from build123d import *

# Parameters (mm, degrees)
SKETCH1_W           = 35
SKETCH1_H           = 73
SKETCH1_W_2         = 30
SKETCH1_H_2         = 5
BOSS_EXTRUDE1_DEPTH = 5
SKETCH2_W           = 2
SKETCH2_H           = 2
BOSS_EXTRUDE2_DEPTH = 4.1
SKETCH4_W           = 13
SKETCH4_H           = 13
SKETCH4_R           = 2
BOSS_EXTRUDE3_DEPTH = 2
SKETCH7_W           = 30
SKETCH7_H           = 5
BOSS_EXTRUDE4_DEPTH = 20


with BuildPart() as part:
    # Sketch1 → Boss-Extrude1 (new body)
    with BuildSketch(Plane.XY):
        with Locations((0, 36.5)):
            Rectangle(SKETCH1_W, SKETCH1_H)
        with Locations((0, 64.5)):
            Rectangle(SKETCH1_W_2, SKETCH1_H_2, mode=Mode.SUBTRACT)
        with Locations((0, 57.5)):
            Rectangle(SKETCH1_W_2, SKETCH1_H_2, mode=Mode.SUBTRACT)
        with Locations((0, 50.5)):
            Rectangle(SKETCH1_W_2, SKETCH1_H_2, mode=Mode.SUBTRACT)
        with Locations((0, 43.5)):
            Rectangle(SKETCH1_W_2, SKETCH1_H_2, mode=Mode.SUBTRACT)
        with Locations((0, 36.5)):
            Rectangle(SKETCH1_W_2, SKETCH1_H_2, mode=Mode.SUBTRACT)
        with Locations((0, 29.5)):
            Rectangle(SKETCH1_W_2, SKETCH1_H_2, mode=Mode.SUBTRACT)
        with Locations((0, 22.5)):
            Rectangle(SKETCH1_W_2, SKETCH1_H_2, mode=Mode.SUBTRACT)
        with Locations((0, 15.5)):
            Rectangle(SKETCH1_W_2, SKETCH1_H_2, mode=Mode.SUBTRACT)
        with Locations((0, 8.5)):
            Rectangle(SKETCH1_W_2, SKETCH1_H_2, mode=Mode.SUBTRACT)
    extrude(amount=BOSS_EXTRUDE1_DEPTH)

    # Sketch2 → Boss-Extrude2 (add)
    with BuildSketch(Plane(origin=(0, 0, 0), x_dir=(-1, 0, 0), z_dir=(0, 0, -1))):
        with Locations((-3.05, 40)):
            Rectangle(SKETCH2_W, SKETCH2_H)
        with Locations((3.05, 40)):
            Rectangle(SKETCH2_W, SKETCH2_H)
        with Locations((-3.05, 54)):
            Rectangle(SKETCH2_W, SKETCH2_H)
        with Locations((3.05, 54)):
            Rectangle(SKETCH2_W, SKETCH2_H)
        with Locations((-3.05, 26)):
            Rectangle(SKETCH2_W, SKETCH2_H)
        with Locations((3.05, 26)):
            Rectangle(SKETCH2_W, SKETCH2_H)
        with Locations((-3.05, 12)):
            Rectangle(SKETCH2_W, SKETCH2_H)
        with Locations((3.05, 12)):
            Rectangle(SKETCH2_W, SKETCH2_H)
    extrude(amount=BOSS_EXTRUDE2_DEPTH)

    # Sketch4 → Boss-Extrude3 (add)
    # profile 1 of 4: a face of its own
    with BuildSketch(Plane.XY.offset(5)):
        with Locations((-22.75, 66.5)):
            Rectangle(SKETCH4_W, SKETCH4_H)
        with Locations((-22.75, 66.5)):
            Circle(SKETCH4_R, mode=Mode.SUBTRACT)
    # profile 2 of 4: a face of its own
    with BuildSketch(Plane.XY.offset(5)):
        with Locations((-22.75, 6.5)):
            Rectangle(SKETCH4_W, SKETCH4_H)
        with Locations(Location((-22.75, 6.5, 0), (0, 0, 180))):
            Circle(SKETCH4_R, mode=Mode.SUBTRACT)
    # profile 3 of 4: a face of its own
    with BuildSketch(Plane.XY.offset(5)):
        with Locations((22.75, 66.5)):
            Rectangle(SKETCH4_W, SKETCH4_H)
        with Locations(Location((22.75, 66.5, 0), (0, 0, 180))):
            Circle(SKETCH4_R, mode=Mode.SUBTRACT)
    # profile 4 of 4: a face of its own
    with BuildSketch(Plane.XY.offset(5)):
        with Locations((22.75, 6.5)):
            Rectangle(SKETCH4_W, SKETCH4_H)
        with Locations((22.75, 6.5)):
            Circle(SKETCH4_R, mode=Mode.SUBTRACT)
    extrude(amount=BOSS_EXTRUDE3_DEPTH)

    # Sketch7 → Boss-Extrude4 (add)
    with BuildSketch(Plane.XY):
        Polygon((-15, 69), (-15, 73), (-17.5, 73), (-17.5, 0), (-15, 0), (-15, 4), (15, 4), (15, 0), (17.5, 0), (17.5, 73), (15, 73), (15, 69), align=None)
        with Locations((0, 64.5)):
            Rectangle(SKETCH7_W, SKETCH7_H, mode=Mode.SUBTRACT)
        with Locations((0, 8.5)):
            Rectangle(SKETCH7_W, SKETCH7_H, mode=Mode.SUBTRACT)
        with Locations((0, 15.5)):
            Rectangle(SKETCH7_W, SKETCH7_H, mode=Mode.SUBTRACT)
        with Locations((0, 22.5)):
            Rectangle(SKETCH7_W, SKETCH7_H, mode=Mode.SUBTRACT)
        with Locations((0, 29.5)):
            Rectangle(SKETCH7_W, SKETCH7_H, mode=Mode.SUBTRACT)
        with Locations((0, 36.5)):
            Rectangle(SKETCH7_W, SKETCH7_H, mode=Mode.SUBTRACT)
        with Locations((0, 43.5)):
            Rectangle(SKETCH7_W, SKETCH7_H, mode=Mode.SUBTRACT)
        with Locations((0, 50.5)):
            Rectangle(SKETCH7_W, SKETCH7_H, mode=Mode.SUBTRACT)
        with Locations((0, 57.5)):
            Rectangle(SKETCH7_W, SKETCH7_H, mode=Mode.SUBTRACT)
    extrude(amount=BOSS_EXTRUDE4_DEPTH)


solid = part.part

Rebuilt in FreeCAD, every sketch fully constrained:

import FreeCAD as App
import Part
import Sketcher

V = App.Vector

doc = App.newDocument("Part")
body = doc.addObject("PartDesign::Body", "Body")

# Sketch on XY plane
sketch1 = body.newObject("Sketcher::SketchObject", "Sketch")
sketch1.AttachmentSupport = (doc.getObject("XY_Plane"), [""])
sketch1.MapMode = "FlatFace"
sketch1.addGeometry([
    Part.LineSegment(V(-18, 73, 0), V(-18, 0, 0)),  # 0
    Part.LineSegment(V(-18, 0, 0), V(18, 0, 0)),  # 1
    Part.LineSegment(V(18, 0, 0), V(18, 73, 0)),  # 2
    Part.LineSegment(V(18, 73, 0), V(-18, 73, 0)),  # 3
    Part.LineSegment(V(15, 6, 0), V(-15, 6, 0)),  # 4
    Part.LineSegment(V(-15, 6, 0), V(-15, 11, 0)),  # 5
    Part.LineSegment(V(-15, 11, 0), V(15, 11, 0)),  # 6
    Part.LineSegment(V(15, 11, 0), V(15, 6, 0)),  # 7
    Part.LineSegment(V(15, 13, 0), V(-15, 13, 0)),  # 8
    Part.LineSegment(V(-15, 13, 0), V(-15, 18, 0)),  # 9
    Part.LineSegment(V(-15, 18, 0), V(15, 18, 0)),  # 10
    Part.LineSegment(V(15, 18, 0), V(15, 13, 0)),  # 11
    Part.LineSegment(V(15, 20, 0), V(-15, 20, 0)),  # 12
    Part.LineSegment(V(-15, 20, 0), V(-15, 25, 0)),  # 13
    Part.LineSegment(V(-15, 25, 0), V(15, 25, 0)),  # 14
    Part.LineSegment(V(15, 25, 0), V(15, 20, 0)),  # 15
    Part.LineSegment(V(15, 27, 0), V(-15, 27, 0)),  # 16
    Part.LineSegment(V(-15, 27, 0), V(-15, 32, 0)),  # 17
    Part.LineSegment(V(-15, 32, 0), V(15, 32, 0)),  # 18
    Part.LineSegment(V(15, 32, 0), V(15, 27, 0)),  # 19
    Part.LineSegment(V(15, 34, 0), V(-15, 34, 0)),  # 20
    Part.LineSegment(V(-15, 34, 0), V(-15, 39, 0)),  # 21
    Part.LineSegment(V(-15, 39, 0), V(15, 39, 0)),  # 22
    Part.LineSegment(V(15, 39, 0), V(15, 34, 0)),  # 23
    Part.LineSegment(V(15, 41, 0), V(-15, 41, 0)),  # 24
    Part.LineSegment(V(-15, 41, 0), V(-15, 46, 0)),  # 25
    Part.LineSegment(V(-15, 46, 0), V(15, 46, 0)),  # 26
    Part.LineSegment(V(15, 46, 0), V(15, 41, 0)),  # 27
    Part.LineSegment(V(15, 48, 0), V(-15, 48, 0)),  # 28
    Part.LineSegment(V(-15, 48, 0), V(-15, 53, 0)),  # 29
    Part.LineSegment(V(-15, 53, 0), V(15, 53, 0)),  # 30
    Part.LineSegment(V(15, 53, 0), V(15, 48, 0)),  # 31
    Part.LineSegment(V(15, 55, 0), V(-15, 55, 0)),  # 32
    Part.LineSegment(V(-15, 55, 0), V(-15, 60, 0)),  # 33
    Part.LineSegment(V(-15, 60, 0), V(15, 60, 0)),  # 34
    Part.LineSegment(V(15, 60, 0), V(15, 55, 0)),  # 35
    Part.LineSegment(V(15, 62, 0), V(-15, 62, 0)),  # 36
    Part.LineSegment(V(-15, 62, 0), V(-15, 67, 0)),  # 37
    Part.LineSegment(V(-15, 67, 0), V(15, 67, 0)),  # 38
    Part.LineSegment(V(15, 67, 0), V(15, 62, 0)),  # 39
], False)
sketch1.addConstraint([
    Sketcher.Constraint("Coincident", 0, 2, 1, 1),
    Sketcher.Constraint("Coincident", 1, 2, 2, 1),
    Sketcher.Constraint("Coincident", 2, 2, 3, 1),
    Sketcher.Constraint("Coincident", 3, 2, 0, 1),
    Sketcher.Constraint("Coincident", 4, 2, 5, 1),
    Sketcher.Constraint("Coincident", 5, 2, 6, 1),
    Sketcher.Constraint("Coincident", 6, 2, 7, 1),
    Sketcher.Constraint("Coincident", 7, 2, 4, 1),
    Sketcher.Constraint("Coincident", 8, 2, 9, 1),
    Sketcher.Constraint("Coincident", 9, 2, 10, 1),
    Sketcher.Constraint("Coincident", 10, 2, 11, 1),
    Sketcher.Constraint("Coincident", 11, 2, 8, 1),
    Sketcher.Constraint("Coincident", 12, 2, 13, 1),
    Sketcher.Constraint("Coincident", 13, 2, 14, 1),
    Sketcher.Constraint("Coincident", 14, 2, 15, 1),
    Sketcher.Constraint("Coincident", 15, 2, 12, 1),
    Sketcher.Constraint("Coincident", 16, 2, 17, 1),
    Sketcher.Constraint("Coincident", 17, 2, 18, 1),
    Sketcher.Constraint("Coincident", 18, 2, 19, 1),
    Sketcher.Constraint("Coincident", 19, 2, 16, 1),
    Sketcher.Constraint("Coincident", 20, 2, 21, 1),
    Sketcher.Constraint("Coincident", 21, 2, 22, 1),
    Sketcher.Constraint("Coincident", 22, 2, 23, 1),
    Sketcher.Constraint("Coincident", 23, 2, 20, 1),
    Sketcher.Constraint("Coincident", 24, 2, 25, 1),
    Sketcher.Constraint("Coincident", 25, 2, 26, 1),
    Sketcher.Constraint("Coincident", 26, 2, 27, 1),
    Sketcher.Constraint("Coincident", 27, 2, 24, 1),
    Sketcher.Constraint("Coincident", 28, 2, 29, 1),
    Sketcher.Constraint("Coincident", 29, 2, 30, 1),
    Sketcher.Constraint("Coincident", 30, 2, 31, 1),
    Sketcher.Constraint("Coincident", 31, 2, 28, 1),
    Sketcher.Constraint("Coincident", 32, 2, 33, 1),
    Sketcher.Constraint("Coincident", 33, 2, 34, 1),
    Sketcher.Constraint("Coincident", 34, 2, 35, 1),
    Sketcher.Constraint("Coincident", 35, 2, 32, 1),
    Sketcher.Constraint("Coincident", 36, 2, 37, 1),
    Sketcher.Constraint("Coincident", 37, 2, 38, 1),
    Sketcher.Constraint("Coincident", 38, 2, 39, 1),
    Sketcher.Constraint("Coincident", 39, 2, 36, 1),
    Sketcher.Constraint("Vertical", 0),
    Sketcher.Constraint("Horizontal", 1),
    Sketcher.Constraint("Vertical", 2),
    Sketcher.Constraint("Horizontal", 3),
    Sketcher.Constraint("Horizontal", 4),
    Sketcher.Constraint("Vertical", 5),
    Sketcher.Constraint("Horizontal", 6),
    Sketcher.Constraint("Vertical", 7),
    Sketcher.Constraint("Horizontal", 8),
    Sketcher.Constraint("Vertical", 9),
    Sketcher.Constraint("Horizontal", 10),
    Sketcher.Constraint("Vertical", 11),
    Sketcher.Constraint("Horizontal", 12),
    Sketcher.Constraint("Vertical", 13),
    Sketcher.Constraint("Horizontal", 14),
    Sketcher.Constraint("Vertical", 15),
    Sketcher.Constraint("Horizontal", 16),
    Sketcher.Constraint("Vertical", 17),
    Sketcher.Constraint("Horizontal", 18),
    Sketcher.Constraint("Vertical", 19),
    Sketcher.Constraint("Horizontal", 20),
    Sketcher.Constraint("Vertical", 21),
    Sketcher.Constraint("Horizontal", 22),
    Sketcher.Constraint("Vertical", 23),
    Sketcher.Constraint("Horizontal", 24),
    Sketcher.Constraint("Vertical", 25),
    Sketcher.Constraint("Horizontal", 26),
    Sketcher.Constraint("Vertical", 27),
    Sketcher.Constraint("Horizontal", 28),
    Sketcher.Constraint("Vertical", 29),
    Sketcher.Constraint("Horizontal", 30),
    Sketcher.Constraint("Vertical", 31),
    Sketcher.Constraint("Horizontal", 32),
    Sketcher.Constraint("Vertical", 33),
    Sketcher.Constraint("Horizontal", 34),
    Sketcher.Constraint("Vertical", 35),
    Sketcher.Constraint("Horizontal", 36),
    Sketcher.Constraint("Vertical", 37),
    Sketcher.Constraint("Horizontal", 38),
    Sketcher.Constraint("Vertical", 39),
    Sketcher.Constraint("Symmetric", 0, 2, 1, 2, -1, 1),
    Sketcher.Constraint("Vertical", 5, 2, 8, 2),
    Sketcher.Constraint("Vertical", 7, 2, 10, 2),
    Sketcher.Constraint("Vertical", 9, 2, 12, 2),
    Sketcher.Constraint("Vertical", 11, 2, 14, 2),
    Sketcher.Constraint("Vertical", 13, 2, 16, 2),
    Sketcher.Constraint("Vertical", 15, 2, 18, 2),
    Sketcher.Constraint("Vertical", 17, 2, 20, 2),
    Sketcher.Constraint("Vertical", 19, 2, 22, 2),
    Sketcher.Constraint("Vertical", 21, 2, 24, 2),
    Sketcher.Constraint("Vertical", 23, 2, 26, 2),
    Sketcher.Constraint("Vertical", 25, 2, 28, 2),
    Sketcher.Constraint("Vertical", 27, 2, 30, 2),
    Sketcher.Constraint("Vertical", 29, 2, 32, 2),
    Sketcher.Constraint("Vertical", 31, 2, 34, 2),
    Sketcher.Constraint("Vertical", 33, 2, 36, 2),
    Sketcher.Constraint("Vertical", 35, 2, 38, 2),
    Sketcher.Constraint("Equal", 7, 9),
    Sketcher.Constraint("Equal", 11, 13),
    Sketcher.Constraint("Equal", 15, 17),
    Sketcher.Constraint("Equal", 19, 21),
    Sketcher.Constraint("Equal", 23, 25),
    Sketcher.Constraint("Equal", 27, 29),
    Sketcher.Constraint("Equal", 31, 33),
    Sketcher.Constraint("Equal", 35, 37),
    Sketcher.Constraint("DistanceX", 1, 1, 1, 2, 35.0),
    Sketcher.Constraint("DistanceX", 4, 2, 4, 1, 30.0),
    Sketcher.Constraint("DistanceY", 0, 2, 0, 1, 73.0),
    Sketcher.Constraint("DistanceY", 5, 1, 5, 2, 5.0),
    Sketcher.Constraint("DistanceX", 4, 2, -1, 1, 15.0),
    Sketcher.Constraint("DistanceY", -1, 1, 4, 2, 6.0),
    Sketcher.Constraint("DistanceY", -1, 1, 8, 2, 13.0),
    Sketcher.Constraint("DistanceY", -1, 1, 12, 2, 20.0),
    Sketcher.Constraint("DistanceY", -1, 1, 16, 2, 27.0),
    Sketcher.Constraint("DistanceY", -1, 1, 20, 2, 34.0),
    Sketcher.Constraint("DistanceY", -1, 1, 24, 2, 41.0),
    Sketcher.Constraint("DistanceY", -1, 1, 28, 2, 48.0),
    Sketcher.Constraint("DistanceY", -1, 1, 32, 2, 55.0),
    Sketcher.Constraint("DistanceY", -1, 1, 36, 2, 62.0),
])
pad1 = body.newObject("PartDesign::Pad", "Pad")
pad1.Profile = sketch1
pad1.Length = 5

# Sketch on XY plane
sketch2 = body.newObject("Sketcher::SketchObject", "Sketch001")
sketch2.AttachmentSupport = (doc.getObject("XY_Plane"), [""])
sketch2.MapMode = "FlatFace"
sketch2.addGeometry([
    Part.LineSegment(V(4, 41, 0), V(4, 39, 0)),  # 0
    Part.LineSegment(V(4, 39, 0), V(2, 39, 0)),  # 1
    Part.LineSegment(V(2, 39, 0), V(2, 41, 0)),  # 2
    Part.LineSegment(V(2, 41, 0), V(4, 41, 0)),  # 3
    Part.LineSegment(V(-2, 41, 0), V(-2, 39, 0)),  # 4
    Part.LineSegment(V(-2, 39, 0), V(-4, 39, 0)),  # 5
    Part.LineSegment(V(-4, 39, 0), V(-4, 41, 0)),  # 6
    Part.LineSegment(V(-4, 41, 0), V(-2, 41, 0)),  # 7
    Part.LineSegment(V(4, 55, 0), V(4, 53, 0)),  # 8
    Part.LineSegment(V(4, 53, 0), V(2, 53, 0)),  # 9
    Part.LineSegment(V(2, 53, 0), V(2, 55, 0)),  # 10
    Part.LineSegment(V(2, 55, 0), V(4, 55, 0)),  # 11
    Part.LineSegment(V(-2, 55, 0), V(-2, 53, 0)),  # 12
    Part.LineSegment(V(-2, 53, 0), V(-4, 53, 0)),  # 13
    Part.LineSegment(V(-4, 53, 0), V(-4, 55, 0)),  # 14
    Part.LineSegment(V(-4, 55, 0), V(-2, 55, 0)),  # 15
    Part.LineSegment(V(4, 27, 0), V(4, 25, 0)),  # 16
    Part.LineSegment(V(4, 25, 0), V(2, 25, 0)),  # 17
    Part.LineSegment(V(2, 25, 0), V(2, 27, 0)),  # 18
    Part.LineSegment(V(2, 27, 0), V(4, 27, 0)),  # 19
    Part.LineSegment(V(-2, 27, 0), V(-2, 25, 0)),  # 20
    Part.LineSegment(V(-2, 25, 0), V(-4, 25, 0)),  # 21
    Part.LineSegment(V(-4, 25, 0), V(-4, 27, 0)),  # 22
    Part.LineSegment(V(-4, 27, 0), V(-2, 27, 0)),  # 23
    Part.LineSegment(V(4, 13, 0), V(4, 11, 0)),  # 24
    Part.LineSegment(V(4, 11, 0), V(2, 11, 0)),  # 25
    Part.LineSegment(V(2, 11, 0), V(2, 13, 0)),  # 26
    Part.LineSegment(V(2, 13, 0), V(4, 13, 0)),  # 27
    Part.LineSegment(V(-2, 13, 0), V(-2, 11, 0)),  # 28
    Part.LineSegment(V(-2, 11, 0), V(-4, 11, 0)),  # 29
    Part.LineSegment(V(-4, 11, 0), V(-4, 13, 0)),  # 30
    Part.LineSegment(V(-4, 13, 0), V(-2, 13, 0)),  # 31
], False)
sketch2.addConstraint([
    Sketcher.Constraint("Coincident", 0, 2, 1, 1),
    Sketcher.Constraint("Coincident", 1, 2, 2, 1),
    Sketcher.Constraint("Coincident", 2, 2, 3, 1),
    Sketcher.Constraint("Coincident", 3, 2, 0, 1),
    Sketcher.Constraint("Coincident", 4, 2, 5, 1),
    Sketcher.Constraint("Coincident", 5, 2, 6, 1),
    Sketcher.Constraint("Coincident", 6, 2, 7, 1),
    Sketcher.Constraint("Coincident", 7, 2, 4, 1),
    Sketcher.Constraint("Coincident", 8, 2, 9, 1),
    Sketcher.Constraint("Coincident", 9, 2, 10, 1),
    Sketcher.Constraint("Coincident", 10, 2, 11, 1),
    Sketcher.Constraint("Coincident", 11, 2, 8, 1),
    Sketcher.Constraint("Coincident", 12, 2, 13, 1),
    Sketcher.Constraint("Coincident", 13, 2, 14, 1),
    Sketcher.Constraint("Coincident", 14, 2, 15, 1),
    Sketcher.Constraint("Coincident", 15, 2, 12, 1),
    Sketcher.Constraint("Coincident", 16, 2, 17, 1),
    Sketcher.Constraint("Coincident", 17, 2, 18, 1),
    Sketcher.Constraint("Coincident", 18, 2, 19, 1),
    Sketcher.Constraint("Coincident", 19, 2, 16, 1),
    Sketcher.Constraint("Coincident", 20, 2, 21, 1),
    Sketcher.Constraint("Coincident", 21, 2, 22, 1),
    Sketcher.Constraint("Coincident", 22, 2, 23, 1),
    Sketcher.Constraint("Coincident", 23, 2, 20, 1),
    Sketcher.Constraint("Coincident", 24, 2, 25, 1),
    Sketcher.Constraint("Coincident", 25, 2, 26, 1),
    Sketcher.Constraint("Coincident", 26, 2, 27, 1),
    Sketcher.Constraint("Coincident", 27, 2, 24, 1),
    Sketcher.Constraint("Coincident", 28, 2, 29, 1),
    Sketcher.Constraint("Coincident", 29, 2, 30, 1),
    Sketcher.Constraint("Coincident", 30, 2, 31, 1),
    Sketcher.Constraint("Coincident", 31, 2, 28, 1),
    Sketcher.Constraint("Vertical", 0),
    Sketcher.Constraint("Horizontal", 1),
    Sketcher.Constraint("Vertical", 2),
    Sketcher.Constraint("Horizontal", 3),
    Sketcher.Constraint("Vertical", 4),
    Sketcher.Constraint("Horizontal", 5),
    Sketcher.Constraint("Vertical", 6),
    Sketcher.Constraint("Horizontal", 7),
    Sketcher.Constraint("Vertical", 8),
    Sketcher.Constraint("Horizontal", 9),
    Sketcher.Constraint("Vertical", 10),
    Sketcher.Constraint("Horizontal", 11),
    Sketcher.Constraint("Vertical", 12),
    Sketcher.Constraint("Horizontal", 13),
    Sketcher.Constraint("Vertical", 14),
    Sketcher.Constraint("Horizontal", 15),
    Sketcher.Constraint("Vertical", 16),
    Sketcher.Constraint("Horizontal", 17),
    Sketcher.Constraint("Vertical", 18),
    Sketcher.Constraint("Horizontal", 19),
    Sketcher.Constraint("Vertical", 20),
    Sketcher.Constraint("Horizontal", 21),
    Sketcher.Constraint("Vertical", 22),
    Sketcher.Constraint("Horizontal", 23),
    Sketcher.Constraint("Vertical", 24),
    Sketcher.Constraint("Horizontal", 25),
    Sketcher.Constraint("Vertical", 26),
    Sketcher.Constraint("Horizontal", 27),
    Sketcher.Constraint("Vertical", 28),
    Sketcher.Constraint("Horizontal", 29),
    Sketcher.Constraint("Vertical", 30),
    Sketcher.Constraint("Horizontal", 31),
    Sketcher.Constraint("Symmetric", 1, 2, 4, 2, -2),
    Sketcher.Constraint("Symmetric", 3, 2, 6, 2, -2),
    Sketcher.Constraint("Symmetric", 9, 2, 12, 2, -2),
    Sketcher.Constraint("Symmetric", 11, 2, 14, 2, -2),
    Sketcher.Constraint("Symmetric", 17, 2, 20, 2, -2),
    Sketcher.Constraint("Symmetric", 19, 2, 22, 2, -2),
    Sketcher.Constraint("Symmetric", 25, 2, 28, 2, -2),
    Sketcher.Constraint("Symmetric", 27, 2, 30, 2, -2),
    Sketcher.Constraint("Vertical", 3, 2, 8, 2),
    Sketcher.Constraint("Vertical", 2, 2, 9, 2),
    Sketcher.Constraint("Vertical", 11, 2, 16, 2),
    Sketcher.Constraint("Vertical", 10, 2, 17, 2),
    Sketcher.Constraint("Vertical", 19, 2, 24, 2),
    Sketcher.Constraint("Vertical", 18, 2, 25, 2),
    Sketcher.Constraint("Equal", 31, 0),
    Sketcher.Constraint("Equal", 6, 8),
    Sketcher.Constraint("Equal", 14, 16),
    Sketcher.Constraint("Equal", 22, 24),
    Sketcher.Constraint("DistanceX", 1, 2, 1, 1, 2.0),
    Sketcher.Constraint("DistanceY", -1, 1, 0, 2, 39.0),
    Sketcher.Constraint("DistanceY", -1, 1, 8, 2, 53.0),
    Sketcher.Constraint("DistanceY", -1, 1, 16, 2, 25.0),
    Sketcher.Constraint("DistanceY", -1, 1, 24, 2, 11.0),
    Sketcher.Constraint("DistanceX", 4, 2, 1, 2, 4.1),
])
pad2 = body.newObject("PartDesign::Pad", "Pad001")
pad2.Profile = sketch2
pad2.Length = 4.1
pad2.Reversed = True

# Sketch on XY plane
sketch3 = body.newObject("Sketcher::SketchObject", "Sketch002")
sketch3.AttachmentSupport = (doc.getObject("XY_Plane"), [""])
sketch3.MapMode = "FlatFace"
sketch3.AttachmentOffset = App.Placement(V(0, 0, 5), App.Rotation())
sketch3.addGeometry([
    Part.LineSegment(V(-29.2, 73, 0), V(-29.2, 60, 0)),  # 0
    Part.LineSegment(V(-29.2, 60, 0), V(-16.2, 60, 0)),  # 1
    Part.LineSegment(V(-16.2, 60, 0), V(-16.2, 73, 0)),  # 2
    Part.LineSegment(V(-16.2, 73, 0), V(-29.2, 73, 0)),  # 3
    Part.Circle(V(-22.8, 66.5, 0), V(0, 0, 1), 2),  # 4
    Part.LineSegment(V(-29.2, 13, 0), V(-29.2, 0, 0)),  # 5
    Part.LineSegment(V(-29.2, 0, 0), V(-16.2, 0, 0)),  # 6
    Part.LineSegment(V(-16.2, 0, 0), V(-16.2, 13, 0)),  # 7
    Part.LineSegment(V(-16.2, 13, 0), V(-29.2, 13, 0)),  # 8
    Part.Circle(V(-22.8, 6.5, 0), V(0, 0, 1), 2),  # 9
    Part.LineSegment(V(16.2, 73, 0), V(16.2, 60, 0)),  # 10
    Part.LineSegment(V(16.2, 60, 0), V(29.2, 60, 0)),  # 11
    Part.LineSegment(V(29.2, 60, 0), V(29.2, 73, 0)),  # 12
    Part.LineSegment(V(29.2, 73, 0), V(16.2, 73, 0)),  # 13
    Part.Circle(V(22.8, 66.5, 0), V(0, 0, 1), 2),  # 14
    Part.LineSegment(V(16.2, 13, 0), V(16.2, 0, 0)),  # 15
    Part.LineSegment(V(16.2, 0, 0), V(29.2, 0, 0)),  # 16
    Part.LineSegment(V(29.2, 0, 0), V(29.2, 13, 0)),  # 17
    Part.LineSegment(V(29.2, 13, 0), V(16.2, 13, 0)),  # 18
    Part.Circle(V(22.8, 6.5, 0), V(0, 0, 1), 2),  # 19
], False)
sketch3.addConstraint([
    Sketcher.Constraint("Coincident", 0, 2, 1, 1),
    Sketcher.Constraint("Coincident", 1, 2, 2, 1),
    Sketcher.Constraint("Coincident", 2, 2, 3, 1),
    Sketcher.Constraint("Coincident", 3, 2, 0, 1),
    Sketcher.Constraint("Coincident", 5, 2, 6, 1),
    Sketcher.Constraint("Coincident", 6, 2, 7, 1),
    Sketcher.Constraint("Coincident", 7, 2, 8, 1),
    Sketcher.Constraint("Coincident", 8, 2, 5, 1),
    Sketcher.Constraint("Coincident", 10, 2, 11, 1),
    Sketcher.Constraint("Coincident", 11, 2, 12, 1),
    Sketcher.Constraint("Coincident", 12, 2, 13, 1),
    Sketcher.Constraint("Coincident", 13, 2, 10, 1),
    Sketcher.Constraint("Coincident", 15, 2, 16, 1),
    Sketcher.Constraint("Coincident", 16, 2, 17, 1),
    Sketcher.Constraint("Coincident", 17, 2, 18, 1),
    Sketcher.Constraint("Coincident", 18, 2, 15, 1),
    Sketcher.Constraint("Vertical", 0),
    Sketcher.Constraint("Horizontal", 1),
    Sketcher.Constraint("Vertical", 2),
    Sketcher.Constraint("Horizontal", 3),
    Sketcher.Constraint("Vertical", 5),
    Sketcher.Constraint("Horizontal", 6),
    Sketcher.Constraint("Vertical", 7),
    Sketcher.Constraint("Horizontal", 8),
    Sketcher.Constraint("Vertical", 10),
    Sketcher.Constraint("Horizontal", 11),
    Sketcher.Constraint("Vertical", 12),
    Sketcher.Constraint("Horizontal", 13),
    Sketcher.Constraint("Vertical", 15),
    Sketcher.Constraint("Horizontal", 16),
    Sketcher.Constraint("Vertical", 17),
    Sketcher.Constraint("Horizontal", 18),
    Sketcher.Constraint("Equal", 4, 9),
    Sketcher.Constraint("Equal", 9, 14),
    Sketcher.Constraint("Equal", 14, 19),
    Sketcher.Constraint("Symmetric", 6, 2, 15, 2, -1, 1),
    Sketcher.Constraint("Symmetric", 4, 3, 14, 3, -2),
    Sketcher.Constraint("Symmetric", 9, 3, 19, 3, -2),
    Sketcher.Constraint("Symmetric", 1, 2, 10, 2, -2),
    Sketcher.Constraint("Symmetric", 3, 2, 12, 2, -2),
    Sketcher.Constraint("Symmetric", 5, 2, 16, 2, -2),
    Sketcher.Constraint("Horizontal", 8, 2, 17, 2),
    Sketcher.Constraint("Vertical", 4, 3, 9, 3),
    Sketcher.Constraint("Vertical", 3, 2, 5, 2),
    Sketcher.Constraint("Vertical", 2, 2, 6, 2),
    Sketcher.Constraint("Equal", 18, 0),
    Sketcher.Constraint("Equal", 2, 5),
    Sketcher.Constraint("Diameter", 4, 4.0),
    Sketcher.Constraint("DistanceX", 1, 1, 1, 2, 13.0),
    Sketcher.Constraint("DistanceY", -1, 1, 0, 2, 60.0),
    Sketcher.Constraint("DistanceY", 9, 3, 4, 3, 60.0),
    Sketcher.Constraint("DistanceX", 0, 2, 14, 3, 52.0),
    Sketcher.Constraint("DistanceY", -1, 1, 4, 3, 66.5),
    Sketcher.Constraint("DistanceX", 4, 3, 14, 3, 45.5),
])
pad3 = body.newObject("PartDesign::Pad", "Pad002")
pad3.Profile = sketch3
pad3.Length = 2

# Sketch on XY plane
sketch4 = body.newObject("Sketcher::SketchObject", "Sketch003")
sketch4.AttachmentSupport = (doc.getObject("XY_Plane"), [""])
sketch4.MapMode = "FlatFace"
sketch4.addGeometry([
    Part.LineSegment(V(-15, 69, 0), V(-15, 73, 0)),  # 0
    Part.LineSegment(V(-15, 73, 0), V(-17.5, 73, 0)),  # 1
    Part.LineSegment(V(-17.5, 73, 0), V(-17.5, 0, 0)),  # 2
    Part.LineSegment(V(-17.5, 0, 0), V(-15, 0, 0)),  # 3
    Part.LineSegment(V(-15, 0, 0), V(-15, 4, 0)),  # 4
    Part.LineSegment(V(-15, 4, 0), V(15, 4, 0)),  # 5
    Part.LineSegment(V(15, 4, 0), V(15, 0, 0)),  # 6
    Part.LineSegment(V(15, 0, 0), V(17.5, 0, 0)),  # 7
    Part.LineSegment(V(17.5, 0, 0), V(17.5, 73, 0)),  # 8
    Part.LineSegment(V(17.5, 73, 0), V(15, 73, 0)),  # 9
    Part.LineSegment(V(15, 73, 0), V(15, 69, 0)),  # 10
    Part.LineSegment(V(15, 69, 0), V(-15, 69, 0)),  # 11
    Part.LineSegment(V(15, 6, 0), V(-15, 6, 0)),  # 12
    Part.LineSegment(V(-15, 6, 0), V(-15, 11, 0)),  # 13
    Part.LineSegment(V(-15, 11, 0), V(15, 11, 0)),  # 14
    Part.LineSegment(V(15, 11, 0), V(15, 6, 0)),  # 15
    Part.LineSegment(V(15, 13, 0), V(-15, 13, 0)),  # 16
    Part.LineSegment(V(-15, 13, 0), V(-15, 18, 0)),  # 17
    Part.LineSegment(V(-15, 18, 0), V(15, 18, 0)),  # 18
    Part.LineSegment(V(15, 18, 0), V(15, 13, 0)),  # 19
    Part.LineSegment(V(15, 20, 0), V(-15, 20, 0)),  # 20
    Part.LineSegment(V(-15, 20, 0), V(-15, 25, 0)),  # 21
    Part.LineSegment(V(-15, 25, 0), V(15, 25, 0)),  # 22
    Part.LineSegment(V(15, 25, 0), V(15, 20, 0)),  # 23
    Part.LineSegment(V(15, 27, 0), V(-15, 27, 0)),  # 24
    Part.LineSegment(V(-15, 27, 0), V(-15, 32, 0)),  # 25
    Part.LineSegment(V(-15, 32, 0), V(15, 32, 0)),  # 26
    Part.LineSegment(V(15, 32, 0), V(15, 27, 0)),  # 27
    Part.LineSegment(V(15, 34, 0), V(-15, 34, 0)),  # 28
    Part.LineSegment(V(-15, 34, 0), V(-15, 39, 0)),  # 29
    Part.LineSegment(V(-15, 39, 0), V(15, 39, 0)),  # 30
    Part.LineSegment(V(15, 39, 0), V(15, 34, 0)),  # 31
    Part.LineSegment(V(15, 41, 0), V(-15, 41, 0)),  # 32
    Part.LineSegment(V(-15, 41, 0), V(-15, 46, 0)),  # 33
    Part.LineSegment(V(-15, 46, 0), V(15, 46, 0)),  # 34
    Part.LineSegment(V(15, 46, 0), V(15, 41, 0)),  # 35
    Part.LineSegment(V(15, 48, 0), V(-15, 48, 0)),  # 36
    Part.LineSegment(V(-15, 48, 0), V(-15, 53, 0)),  # 37
    Part.LineSegment(V(-15, 53, 0), V(15, 53, 0)),  # 38
    Part.LineSegment(V(15, 53, 0), V(15, 48, 0)),  # 39
    Part.LineSegment(V(15, 55, 0), V(-15, 55, 0)),  # 40
    Part.LineSegment(V(-15, 55, 0), V(-15, 60, 0)),  # 41
    Part.LineSegment(V(-15, 60, 0), V(15, 60, 0)),  # 42
    Part.LineSegment(V(15, 60, 0), V(15, 55, 0)),  # 43
    Part.LineSegment(V(15, 62, 0), V(-15, 62, 0)),  # 44
    Part.LineSegment(V(-15, 62, 0), V(-15, 67, 0)),  # 45
    Part.LineSegment(V(-15, 67, 0), V(15, 67, 0)),  # 46
    Part.LineSegment(V(15, 67, 0), V(15, 62, 0)),  # 47
], False)
sketch4.addConstraint([
    Sketcher.Constraint("Coincident", 0, 2, 1, 1),
    Sketcher.Constraint("Coincident", 1, 2, 2, 1),
    Sketcher.Constraint("Coincident", 2, 2, 3, 1),
    Sketcher.Constraint("Coincident", 3, 2, 4, 1),
    Sketcher.Constraint("Coincident", 4, 2, 5, 1),
    Sketcher.Constraint("Coincident", 5, 2, 6, 1),
    Sketcher.Constraint("Coincident", 6, 2, 7, 1),
    Sketcher.Constraint("Coincident", 7, 2, 8, 1),
    Sketcher.Constraint("Coincident", 8, 2, 9, 1),
    Sketcher.Constraint("Coincident", 9, 2, 10, 1),
    Sketcher.Constraint("Coincident", 10, 2, 11, 1),
    Sketcher.Constraint("Coincident", 11, 2, 0, 1),
    Sketcher.Constraint("Coincident", 12, 2, 13, 1),
    Sketcher.Constraint("Coincident", 13, 2, 14, 1),
    Sketcher.Constraint("Coincident", 14, 2, 15, 1),
    Sketcher.Constraint("Coincident", 15, 2, 12, 1),
    Sketcher.Constraint("Coincident", 16, 2, 17, 1),
    Sketcher.Constraint("Coincident", 17, 2, 18, 1),
    Sketcher.Constraint("Coincident", 18, 2, 19, 1),
    Sketcher.Constraint("Coincident", 19, 2, 16, 1),
    Sketcher.Constraint("Coincident", 20, 2, 21, 1),
    Sketcher.Constraint("Coincident", 21, 2, 22, 1),
    Sketcher.Constraint("Coincident", 22, 2, 23, 1),
    Sketcher.Constraint("Coincident", 23, 2, 20, 1),
    Sketcher.Constraint("Coincident", 24, 2, 25, 1),
    Sketcher.Constraint("Coincident", 25, 2, 26, 1),
    Sketcher.Constraint("Coincident", 26, 2, 27, 1),
    Sketcher.Constraint("Coincident", 27, 2, 24, 1),
    Sketcher.Constraint("Coincident", 28, 2, 29, 1),
    Sketcher.Constraint("Coincident", 29, 2, 30, 1),
    Sketcher.Constraint("Coincident", 30, 2, 31, 1),
    Sketcher.Constraint("Coincident", 31, 2, 28, 1),
    Sketcher.Constraint("Coincident", 32, 2, 33, 1),
    Sketcher.Constraint("Coincident", 33, 2, 34, 1),
    Sketcher.Constraint("Coincident", 34, 2, 35, 1),
    Sketcher.Constraint("Coincident", 35, 2, 32, 1),
    Sketcher.Constraint("Coincident", 36, 2, 37, 1),
    Sketcher.Constraint("Coincident", 37, 2, 38, 1),
    Sketcher.Constraint("Coincident", 38, 2, 39, 1),
    Sketcher.Constraint("Coincident", 39, 2, 36, 1),
    Sketcher.Constraint("Coincident", 40, 2, 41, 1),
    Sketcher.Constraint("Coincident", 41, 2, 42, 1),
    Sketcher.Constraint("Coincident", 42, 2, 43, 1),
    Sketcher.Constraint("Coincident", 43, 2, 40, 1),
    Sketcher.Constraint("Coincident", 44, 2, 45, 1),
    Sketcher.Constraint("Coincident", 45, 2, 46, 1),
    Sketcher.Constraint("Coincident", 46, 2, 47, 1),
    Sketcher.Constraint("Coincident", 47, 2, 44, 1),
    Sketcher.Constraint("Vertical", 0),
    Sketcher.Constraint("Horizontal", 1),
    Sketcher.Constraint("Vertical", 2),
    Sketcher.Constraint("Horizontal", 3),
    Sketcher.Constraint("Vertical", 4),
    Sketcher.Constraint("Horizontal", 5),
    Sketcher.Constraint("Vertical", 6),
    Sketcher.Constraint("Horizontal", 7),
    Sketcher.Constraint("Vertical", 8),
    Sketcher.Constraint("Horizontal", 9),
    Sketcher.Constraint("Vertical", 10),
    Sketcher.Constraint("Horizontal", 11),
    Sketcher.Constraint("Horizontal", 12),
    Sketcher.Constraint("Vertical", 13),
    Sketcher.Constraint("Horizontal", 14),
    Sketcher.Constraint("Vertical", 15),
    Sketcher.Constraint("Horizontal", 16),
    Sketcher.Constraint("Vertical", 17),
    Sketcher.Constraint("Horizontal", 18),
    Sketcher.Constraint("Vertical", 19),
    Sketcher.Constraint("Horizontal", 20),
    Sketcher.Constraint("Vertical", 21),
    Sketcher.Constraint("Horizontal", 22),
    Sketcher.Constraint("Vertical", 23),
    Sketcher.Constraint("Horizontal", 24),
    Sketcher.Constraint("Vertical", 25),
    Sketcher.Constraint("Horizontal", 26),
    Sketcher.Constraint("Vertical", 27),
    Sketcher.Constraint("Horizontal", 28),
    Sketcher.Constraint("Vertical", 29),
    Sketcher.Constraint("Horizontal", 30),
    Sketcher.Constraint("Vertical", 31),
    Sketcher.Constraint("Horizontal", 32),
    Sketcher.Constraint("Vertical", 33),
    Sketcher.Constraint("Horizontal", 34),
    Sketcher.Constraint("Vertical", 35),
    Sketcher.Constraint("Horizontal", 36),
    Sketcher.Constraint("Vertical", 37),
    Sketcher.Constraint("Horizontal", 38),
    Sketcher.Constraint("Vertical", 39),
    Sketcher.Constraint("Horizontal", 40),
    Sketcher.Constraint("Vertical", 41),
    Sketcher.Constraint("Horizontal", 42),
    Sketcher.Constraint("Vertical", 43),
    Sketcher.Constraint("Horizontal", 44),
    Sketcher.Constraint("Vertical", 45),
    Sketcher.Constraint("Horizontal", 46),
    Sketcher.Constraint("Vertical", 47),
    Sketcher.Constraint("Symmetric", 3, 2, 6, 2, -1, 1),
    Sketcher.Constraint("Symmetric", 2, 2, 7, 2, -2),
    Sketcher.Constraint("Symmetric", 0, 2, 9, 2, -2),
    Sketcher.Constraint("Vertical", 0, 2, 3, 2),
    Sketcher.Constraint("Vertical", 11, 2, 12, 2),
    Sketcher.Constraint("Vertical", 10, 2, 14, 2),
    Sketcher.Constraint("Vertical", 13, 2, 16, 2),
    Sketcher.Constraint("Vertical", 15, 2, 18, 2),
    Sketcher.Constraint("Vertical", 17, 2, 20, 2),
    Sketcher.Constraint("Vertical", 19, 2, 22, 2),
    Sketcher.Constraint("Vertical", 21, 2, 24, 2),
    Sketcher.Constraint("Vertical", 23, 2, 26, 2),
    Sketcher.Constraint("Vertical", 25, 2, 28, 2),
    Sketcher.Constraint("Vertical", 27, 2, 30, 2),
    Sketcher.Constraint("Vertical", 29, 2, 32, 2),
    Sketcher.Constraint("Vertical", 31, 2, 34, 2),
    Sketcher.Constraint("Vertical", 33, 2, 36, 2),
    Sketcher.Constraint("Vertical", 35, 2, 38, 2),
    Sketcher.Constraint("Vertical", 37, 2, 40, 2),
    Sketcher.Constraint("Vertical", 39, 2, 42, 2),
    Sketcher.Constraint("Vertical", 41, 2, 44, 2),
    Sketcher.Constraint("Vertical", 43, 2, 46, 2),
    Sketcher.Constraint("Equal", 0, 4),
    Sketcher.Constraint("Equal", 15, 17),
    Sketcher.Constraint("Equal", 19, 21),
    Sketcher.Constraint("Equal", 23, 25),
    Sketcher.Constraint("Equal", 27, 29),
    Sketcher.Constraint("Equal", 31, 33),
    Sketcher.Constraint("Equal", 35, 37),
    Sketcher.Constraint("Equal", 39, 41),
    Sketcher.Constraint("Equal", 43, 45),
    Sketcher.Constraint("DistanceX", 5, 1, 5, 2, 30.0),
    Sketcher.Constraint("DistanceY", 0, 1, 0, 2, 4.0),
    Sketcher.Constraint("DistanceY", 2, 2, 2, 1, 73.0),
    Sketcher.Constraint("DistanceY", 13, 1, 13, 2, 5.0),
    Sketcher.Constraint("DistanceX", 1, 2, 1, 1, 2.5),
    Sketcher.Constraint("DistanceY", -1, 1, 12, 2, 6.0),
    Sketcher.Constraint("DistanceY", -1, 1, 16, 2, 13.0),
    Sketcher.Constraint("DistanceY", -1, 1, 20, 2, 20.0),
    Sketcher.Constraint("DistanceY", -1, 1, 24, 2, 27.0),
    Sketcher.Constraint("DistanceY", -1, 1, 28, 2, 34.0),
    Sketcher.Constraint("DistanceY", -1, 1, 32, 2, 41.0),
    Sketcher.Constraint("DistanceY", -1, 1, 36, 2, 48.0),
    Sketcher.Constraint("DistanceY", -1, 1, 40, 2, 55.0),
    Sketcher.Constraint("DistanceY", -1, 1, 44, 2, 62.0),
])
pad4 = body.newObject("PartDesign::Pad", "Pad003")
pad4.Profile = sketch4
pad4.Length = 20

doc.recompute()
